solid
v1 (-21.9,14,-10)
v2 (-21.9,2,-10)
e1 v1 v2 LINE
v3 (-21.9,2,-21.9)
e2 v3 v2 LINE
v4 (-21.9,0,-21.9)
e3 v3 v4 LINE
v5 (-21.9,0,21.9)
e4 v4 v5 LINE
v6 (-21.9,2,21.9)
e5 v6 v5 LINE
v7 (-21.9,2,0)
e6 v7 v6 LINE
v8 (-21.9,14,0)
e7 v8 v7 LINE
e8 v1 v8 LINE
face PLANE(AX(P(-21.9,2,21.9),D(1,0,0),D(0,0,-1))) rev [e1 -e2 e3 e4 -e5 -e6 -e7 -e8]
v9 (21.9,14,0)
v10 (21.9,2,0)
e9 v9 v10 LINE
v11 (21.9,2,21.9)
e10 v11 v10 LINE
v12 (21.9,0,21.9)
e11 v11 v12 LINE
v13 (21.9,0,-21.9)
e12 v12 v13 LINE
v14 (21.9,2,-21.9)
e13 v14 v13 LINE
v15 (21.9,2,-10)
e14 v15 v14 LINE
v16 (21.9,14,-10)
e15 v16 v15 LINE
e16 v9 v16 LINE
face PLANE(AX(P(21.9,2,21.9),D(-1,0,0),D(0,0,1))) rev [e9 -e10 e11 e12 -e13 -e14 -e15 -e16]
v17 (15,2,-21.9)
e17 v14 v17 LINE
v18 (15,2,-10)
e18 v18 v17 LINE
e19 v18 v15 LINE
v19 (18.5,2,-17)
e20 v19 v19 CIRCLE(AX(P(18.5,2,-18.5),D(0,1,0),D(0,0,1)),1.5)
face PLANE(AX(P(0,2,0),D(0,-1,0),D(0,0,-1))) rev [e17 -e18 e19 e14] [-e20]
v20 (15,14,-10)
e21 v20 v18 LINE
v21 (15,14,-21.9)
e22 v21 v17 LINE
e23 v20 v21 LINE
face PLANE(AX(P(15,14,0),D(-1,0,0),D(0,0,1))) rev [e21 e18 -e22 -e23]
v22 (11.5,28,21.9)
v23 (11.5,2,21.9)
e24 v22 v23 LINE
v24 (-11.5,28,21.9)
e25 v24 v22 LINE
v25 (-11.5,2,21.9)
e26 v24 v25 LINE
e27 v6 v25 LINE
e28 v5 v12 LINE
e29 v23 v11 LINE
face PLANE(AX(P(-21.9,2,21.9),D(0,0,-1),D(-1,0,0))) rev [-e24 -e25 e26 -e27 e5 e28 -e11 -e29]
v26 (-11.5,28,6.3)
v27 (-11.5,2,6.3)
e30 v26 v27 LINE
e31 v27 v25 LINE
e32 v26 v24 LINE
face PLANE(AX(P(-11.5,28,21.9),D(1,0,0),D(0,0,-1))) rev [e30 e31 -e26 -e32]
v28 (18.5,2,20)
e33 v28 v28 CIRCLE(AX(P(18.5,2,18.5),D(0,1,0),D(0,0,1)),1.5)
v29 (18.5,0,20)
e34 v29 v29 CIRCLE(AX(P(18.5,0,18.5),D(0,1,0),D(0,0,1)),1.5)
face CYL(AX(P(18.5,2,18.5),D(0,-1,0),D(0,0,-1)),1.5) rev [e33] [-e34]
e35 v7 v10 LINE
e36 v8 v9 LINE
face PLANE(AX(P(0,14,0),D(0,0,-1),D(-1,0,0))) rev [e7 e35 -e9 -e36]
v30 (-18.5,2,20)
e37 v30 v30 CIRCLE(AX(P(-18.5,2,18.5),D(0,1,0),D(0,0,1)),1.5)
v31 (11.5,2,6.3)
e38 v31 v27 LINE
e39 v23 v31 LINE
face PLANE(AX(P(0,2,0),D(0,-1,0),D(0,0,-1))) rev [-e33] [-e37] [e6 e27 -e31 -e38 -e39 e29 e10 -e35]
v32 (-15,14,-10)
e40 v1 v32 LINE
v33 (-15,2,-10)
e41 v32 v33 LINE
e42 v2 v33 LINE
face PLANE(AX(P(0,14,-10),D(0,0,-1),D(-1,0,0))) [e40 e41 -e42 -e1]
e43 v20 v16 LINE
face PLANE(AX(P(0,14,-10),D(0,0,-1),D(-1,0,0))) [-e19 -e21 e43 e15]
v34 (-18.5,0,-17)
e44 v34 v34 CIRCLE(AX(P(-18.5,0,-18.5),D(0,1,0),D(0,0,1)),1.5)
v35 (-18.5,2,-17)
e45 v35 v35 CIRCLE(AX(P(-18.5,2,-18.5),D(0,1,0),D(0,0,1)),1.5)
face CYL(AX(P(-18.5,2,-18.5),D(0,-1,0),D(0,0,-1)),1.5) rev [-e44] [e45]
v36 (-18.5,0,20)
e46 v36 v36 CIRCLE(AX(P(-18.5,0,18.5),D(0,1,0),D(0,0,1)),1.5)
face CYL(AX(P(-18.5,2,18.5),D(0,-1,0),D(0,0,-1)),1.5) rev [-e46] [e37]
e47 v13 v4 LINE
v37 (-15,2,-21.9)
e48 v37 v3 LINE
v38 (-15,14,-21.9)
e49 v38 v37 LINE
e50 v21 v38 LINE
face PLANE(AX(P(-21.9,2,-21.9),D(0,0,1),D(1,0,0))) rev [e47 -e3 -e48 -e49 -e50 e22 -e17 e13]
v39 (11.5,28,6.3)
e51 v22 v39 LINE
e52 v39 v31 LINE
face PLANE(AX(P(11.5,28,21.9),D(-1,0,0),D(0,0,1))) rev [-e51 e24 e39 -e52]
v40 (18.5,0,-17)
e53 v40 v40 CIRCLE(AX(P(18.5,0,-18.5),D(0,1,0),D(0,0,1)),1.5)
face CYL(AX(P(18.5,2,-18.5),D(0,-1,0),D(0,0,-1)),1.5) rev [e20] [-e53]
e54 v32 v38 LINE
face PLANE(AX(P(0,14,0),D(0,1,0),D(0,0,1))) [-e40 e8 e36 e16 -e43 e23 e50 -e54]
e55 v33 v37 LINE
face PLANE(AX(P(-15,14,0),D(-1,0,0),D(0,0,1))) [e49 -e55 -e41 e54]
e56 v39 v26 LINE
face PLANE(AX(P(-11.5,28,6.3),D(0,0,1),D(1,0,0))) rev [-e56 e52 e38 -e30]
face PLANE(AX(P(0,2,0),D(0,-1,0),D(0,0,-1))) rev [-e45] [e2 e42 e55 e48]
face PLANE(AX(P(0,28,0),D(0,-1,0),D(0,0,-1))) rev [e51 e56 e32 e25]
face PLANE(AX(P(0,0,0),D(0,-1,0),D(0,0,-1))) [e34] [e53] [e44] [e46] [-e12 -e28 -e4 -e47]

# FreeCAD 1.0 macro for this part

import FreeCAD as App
import Part
import Sketcher

V = App.Vector

doc = App.newDocument("Part")
params = doc.addObject("Spreadsheet::Sheet", "Params")
for row, (alias, value) in enumerate([
    ("sketch1_diameter", "3 mm"),
    ("sketch1_width", "43.8 mm"),
    ("pad1_length", "2 mm"),
    ("sketch2_width", "23 mm"),
    ("sketch2_height", "15.6 mm"),
    ("pad2_length", "26 mm"),
    ("sketch3_width", "30 mm"),
    ("sketch3_height", "10 mm"),
    ("sketch3_width2", "43.8 mm"),
    ("sketch3_height2", "11.9 mm"),
    ("pad3_length", "12 mm"),
], start=1):
    params.set(f"A{row}", alias)
    params.set(f"B{row}", "=" + value)
    params.setAlias(f"B{row}", alias)

body = doc.addObject("PartDesign::Body", "Body")

# Sketch on XZ plane
sketch1 = body.newObject("Sketcher::SketchObject", "Sketch")
sketch1.AttachmentSupport = (doc.getObject("XZ_Plane"), [""])
sketch1.MapMode = "FlatFace"
sketch1.addGeometry([
    Part.LineSegment(V(-21.9, -21.9, 0), V(-21.9, 21.9, 0)),  # 0
    Part.LineSegment(V(-21.9, 21.9, 0), V(21.9, 21.9, 0)),  # 1
    Part.LineSegment(V(21.9, 21.9, 0), V(21.9, -21.9, 0)),  # 2
    Part.LineSegment(V(21.9, -21.9, 0), V(-21.9, -21.9, 0)),  # 3
    Part.Circle(V(-18.5, 18.5, 0), V(0, 0, 1), 1.5),  # 4
    Part.Circle(V(18.5, 18.5, 0), V(0, 0, 1), 1.5),  # 5
    Part.Circle(V(-18.5, -18.5, 0), V(0, 0, 1), 1.5),  # 6
    Part.Circle(V(18.5, -18.5, 0), V(0, 0, 1), 1.5),  # 7
], False)
sketch1.addConstraint([
    Sketcher.Constraint("Coincident", 0, 2, 1, 1),
    Sketcher.Constraint("Coincident", 1, 2, 2, 1),
    Sketcher.Constraint("Coincident", 2, 2, 3, 1),
    Sketcher.Constraint("Coincident", 3, 2, 0, 1),
    Sketcher.Constraint("Vertical", 0),
    Sketcher.Constraint("Horizontal", 1),
    Sketcher.Constraint("Vertical", 2),
    Sketcher.Constraint("Horizontal", 3),
    Sketcher.Constraint("Equal", 4, 5),
    Sketcher.Constraint("Equal", 5, 6),
    Sketcher.Constraint("Equal", 6, 7),
    Sketcher.Constraint("Symmetric", 5, 3, 6, 3, -1, 1),
    Sketcher.Constraint("Symmetric", 4, 3, 7, 3, -1, 1),
    Sketcher.Constraint("Symmetric", 0, 2, 2, 2, -1, 1),
    Sketcher.Constraint("Symmetric", 4, 3, 5, 3, -2),
    Sketcher.Constraint("Equal", 3, 0),
    Sketcher.Constraint("Diameter", 4, 3.0),
    Sketcher.Constraint("DistanceX", 1, 1, 1, 2, 43.8),
    Sketcher.Constraint("DistanceX", 4, 3, 5, 3, 37.0),
    Sketcher.Constraint("DistanceY", 6, 3, 4, 3, 37.0),
])
sketch1.setExpression("Constraints[16]", "Params.sketch1_diameter")
sketch1.setExpression("Constraints[17]", "Params.sketch1_width")
pad1 = body.newObject("PartDesign::Pad", "Pad")
pad1.Profile = sketch1
pad1.setExpression("Length", "Params.pad1_length")
pad1.Reversed = True

# Sketch on XZ plane
sketch2 = body.newObject("Sketcher::SketchObject", "Sketch001")
sketch2.AttachmentSupport = (doc.getObject("XZ_Plane"), [""])
sketch2.MapMode = "FlatFace"
sketch2.AttachmentOffset = App.Placement(V(0, 0, -2), App.Rotation())
sketch2.addGeometry([
    Part.LineSegment(V(-12, 6, 0), V(-12, 22, 0)),
    Part.LineSegment(V(-12, 22, 0), V(12, 22, 0)),
    Part.LineSegment(V(12, 22, 0), V(12, 6, 0)),
    Part.LineSegment(V(12, 6, 0), V(-12, 6, 0)),
], False)
sketch2.addConstraint([
    Sketcher.Constraint("Coincident", 0, 2, 1, 1),
    Sketcher.Constraint("Coincident", 1, 2, 2, 1),
    Sketcher.Constraint("Coincident", 2, 2, 3, 1),
    Sketcher.Constraint("Coincident", 3, 2, 0, 1),
    Sketcher.Constraint("Vertical", 0),
    Sketcher.Constraint("Horizontal", 1),
    Sketcher.Constraint("Vertical", 2),
    Sketcher.Constraint("Horizontal", 3),
    Sketcher.Constraint("DistanceX", 1, 1, 1, 2, 23.0),
    Sketcher.Constraint("DistanceY", 0, 1, 0, 2, 15.6),
    Sketcher.Constraint("DistanceX", 0, 2, -1, 1, 11.5),
    Sketcher.Constraint("DistanceY", -1, 1, 0, 2, 21.9),
])
sketch2.setExpression("Constraints[8]", "Params.sketch2_width")
sketch2.setExpression("Constraints[9]", "Params.sketch2_height")
pad2 = body.newObject("PartDesign::Pad", "Pad001")
pad2.Profile = sketch2
pad2.setExpression("Length", "Params.pad2_length")
pad2.Reversed = True

# Sketch on XZ plane
sketch3 = body.newObject("Sketcher::SketchObject", "Sketch002")
sketch3.AttachmentSupport = (doc.getObject("XZ_Plane"), [""])
sketch3.MapMode = "FlatFace"
sketch3.AttachmentOffset = App.Placement(V(0, 0, -2), App.Rotation())
sketch3.addGeometry([
    Part.LineSegment(V(-22, -10, 0), V(-22, 0, 0)),  # 0
    Part.LineSegment(V(-22, 0, 0), V(22, 0, 0)),  # 1
    Part.LineSegment(V(22, 0, 0), V(22, -10, 0)),  # 2
    Part.LineSegment(V(22, -10, 0), V(15, -10, 0)),  # 3
    Part.LineSegment(V(15, -10, 0), V(15, -22, 0)),  # 4
    Part.LineSegment(V(15, -22, 0), V(-15, -22, 0)),  # 5
    Part.LineSegment(V(-15, -22, 0), V(-15, -10, 0)),  # 6
    Part.LineSegment(V(-15, -10, 0), V(-22, -10, 0)),  # 7
], False)
sketch3.addConstraint([
    Sketcher.Constraint("Coincident", 0, 2, 1, 1),
    Sketcher.Constraint("Coincident", 1, 2, 2, 1),
    Sketcher.Constraint("Coincident", 2, 2, 3, 1),
    Sketcher.Constraint("Coincident", 3, 2, 4, 1),
    Sketcher.Constraint("Coincident", 4, 2, 5, 1),
    Sketcher.Constraint("Coincident", 5, 2, 6, 1),
    Sketcher.Constraint("Coincident", 6, 2, 7, 1),
    Sketcher.Constraint("Coincident", 7, 2, 0, 1),
    Sketcher.Constraint("Vertical", 0),
    Sketcher.Constraint("Horizontal", 1),
    Sketcher.Constraint("Vertical", 2),
    Sketcher.Constraint("Horizontal", 3),
    Sketcher.Constraint("Vertical", 4),
    Sketcher.Constraint("Horizontal", 5),
    Sketcher.Constraint("Vertical", 6),
    Sketcher.Constraint("Horizontal", 7),
    Sketcher.Constraint("Symmetric", 0, 2, 1, 2, -1, 1),
    Sketcher.Constraint("Symmetric", 3, 2, 6, 2, -2),
    Sketcher.Constraint("DistanceX", 5, 2, 5, 1, 30.0),
    Sketcher.Constraint("DistanceY", 0, 1, 0, 2, 10.0),
    Sketcher.Constraint("DistanceX", 1, 1, 1, 2, 43.8),
    Sketcher.Constraint("DistanceY", 4, 2, 4, 1, 11.9),
])
sketch3.setExpression("Constraints[18]", "Params.sketch3_width")
sketch3.setExpression("Constraints[19]", "Params.sketch3_height")
sketch3.setExpression("Constraints[20]", "Params.sketch3_width2")
sketch3.setExpression("Constraints[21]", "Params.sketch3_height2")
pad3 = body.newObject("PartDesign::Pad", "Pad002")
pad3.Profile = sketch3
pad3.setExpression("Length", "Params.pad3_length")
pad3.Reversed = True

doc.recompute()
